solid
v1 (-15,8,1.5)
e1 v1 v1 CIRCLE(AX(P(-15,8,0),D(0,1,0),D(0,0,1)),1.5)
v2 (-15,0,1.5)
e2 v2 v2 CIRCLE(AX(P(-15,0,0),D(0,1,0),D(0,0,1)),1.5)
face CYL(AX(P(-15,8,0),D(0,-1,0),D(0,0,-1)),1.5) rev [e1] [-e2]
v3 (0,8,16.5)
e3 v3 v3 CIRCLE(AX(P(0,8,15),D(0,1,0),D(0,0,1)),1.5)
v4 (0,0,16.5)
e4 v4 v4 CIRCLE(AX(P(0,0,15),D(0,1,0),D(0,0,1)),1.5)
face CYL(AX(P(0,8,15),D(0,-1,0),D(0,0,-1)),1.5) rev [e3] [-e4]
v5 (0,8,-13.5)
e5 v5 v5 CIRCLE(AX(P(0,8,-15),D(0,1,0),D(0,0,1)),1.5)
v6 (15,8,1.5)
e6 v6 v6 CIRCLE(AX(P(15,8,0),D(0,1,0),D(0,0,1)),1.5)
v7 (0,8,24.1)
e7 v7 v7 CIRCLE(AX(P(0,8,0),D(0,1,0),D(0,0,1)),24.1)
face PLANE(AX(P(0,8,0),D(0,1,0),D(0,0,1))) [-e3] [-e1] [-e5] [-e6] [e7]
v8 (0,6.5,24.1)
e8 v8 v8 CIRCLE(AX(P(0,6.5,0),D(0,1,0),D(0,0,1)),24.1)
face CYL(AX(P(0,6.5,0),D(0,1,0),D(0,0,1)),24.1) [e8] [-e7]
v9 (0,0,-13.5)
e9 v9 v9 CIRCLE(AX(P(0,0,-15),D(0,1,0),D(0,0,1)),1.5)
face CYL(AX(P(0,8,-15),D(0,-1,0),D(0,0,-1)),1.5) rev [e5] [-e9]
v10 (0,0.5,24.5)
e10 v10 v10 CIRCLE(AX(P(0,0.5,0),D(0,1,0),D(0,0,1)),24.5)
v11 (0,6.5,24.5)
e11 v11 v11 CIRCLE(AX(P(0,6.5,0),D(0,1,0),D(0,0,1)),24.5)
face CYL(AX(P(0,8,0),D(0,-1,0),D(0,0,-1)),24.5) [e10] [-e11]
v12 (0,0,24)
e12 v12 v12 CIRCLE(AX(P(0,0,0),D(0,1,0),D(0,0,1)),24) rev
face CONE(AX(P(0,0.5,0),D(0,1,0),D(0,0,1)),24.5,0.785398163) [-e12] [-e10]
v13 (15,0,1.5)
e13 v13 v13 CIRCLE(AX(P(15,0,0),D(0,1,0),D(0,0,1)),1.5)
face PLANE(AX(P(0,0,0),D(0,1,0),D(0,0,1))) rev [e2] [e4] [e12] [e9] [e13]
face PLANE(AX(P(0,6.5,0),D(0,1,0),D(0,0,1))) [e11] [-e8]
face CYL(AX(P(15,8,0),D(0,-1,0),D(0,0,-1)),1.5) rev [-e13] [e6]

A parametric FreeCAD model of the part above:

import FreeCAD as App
import Part
import Sketcher
from FreeCAD import Vector
Q = App.Units.Quantity


def edges_at(feature, points):
    """Names of the edges that pass closest to the given points."""
    edges = feature.Shape.Edges
    near = lambda p: min(range(len(edges)), key=lambda i: edges[i].distToShape(Part.Vertex(*p))[0])
    return sorted({f"Edge{near(p) + 1}" for p in points})

doc = App.newDocument("Part")
body = doc.addObject("PartDesign::Body", "Body")

sketch1 = body.newObject("Sketcher::SketchObject", "Sketch")
sketch1.AttachmentSupport = (doc.getObject("XZ_Plane"), [""])
sketch1.MapMode = "FlatFace"
sketch1.addGeometry(Part.Circle(Vector(0, 0, 0), Vector(0, 0, 1), 24.5), False)
sketch1.addGeometry(Part.Circle(Vector(0, 15, 0), Vector(0, 0, 1), 1.5), False)
sketch1.addGeometry(Part.Circle(Vector(-15, 0, 0), Vector(0, 0, 1), 1.5), False)
sketch1.addGeometry(Part.Circle(Vector(15, 0, 0), Vector(0, 0, 1), 1.5), False)
sketch1.addGeometry(Part.Circle(Vector(0, -15, 0), Vector(0, 0, 1), 1.5), False)
sketch1.addConstraint(Sketcher.Constraint("Coincident", 0, 3, -1, 1))
sketch1.addConstraint(Sketcher.Constraint("Equal", 1, 2))
sketch1.addConstraint(Sketcher.Constraint("Equal", 2, 3))
sketch1.addConstraint(Sketcher.Constraint("Equal", 3, 4))
sketch1.addConstraint(Sketcher.Constraint("Symmetric", 2, 3, 3, 3, -1, 1))
sketch1.addConstraint(Sketcher.Constraint("Symmetric", 1, 3, 4, 3, -1, 1))
sketch1.addConstraint(Sketcher.Constraint("PointOnObject", 1, 3, -2))
sketch1.addConstraint(Sketcher.Constraint("PointOnObject", 2, 3, -1))
sketch1.addConstraint(Sketcher.Constraint("Diameter", 0, Q("49 mm")))
sketch1.addConstraint(Sketcher.Constraint("Diameter", 1, Q("3 mm")))
sketch1.addConstraint(Sketcher.Constraint("DistanceY", -1, 1, 1, 3, Q("15 mm")))
sketch1.addConstraint(Sketcher.Constraint("DistanceX", 2, 3, -1, 1, Q("15 mm")))
pad1 = body.newObject("PartDesign::Pad", "Pad")
pad1.Profile = sketch1
pad1.Length = 8
pad1.Reversed = True

sketch2 = body.newObject("Sketcher::SketchObject", "Sketch001")
sketch2.AttachmentSupport = (doc.getObject("XZ_Plane"), [""])
sketch2.MapMode = "FlatFace"
sketch2.AttachmentOffset = App.Placement(Vector(0, 0, -8), App.Rotation())
sketch2.addGeometry(Part.LineSegment(Vector(-32, -32, 0), Vector(-32, 32, 0)), False)
sketch2.addGeometry(Part.LineSegment(Vector(-32, 32, 0), Vector(32, 32, 0)), False)
sketch2.addGeometry(Part.LineSegment(Vector(32, 32, 0), Vector(32, -32, 0)), False)
sketch2.addGeometry(Part.LineSegment(Vector(32, -32, 0), Vector(-32, -32, 0)), False)
sketch2.addGeometry(Part.Circle(Vector(0, 0, 0), Vector(0, 0, 1), 24), False)
sketch2.addConstraint(Sketcher.Constraint("Coincident", 0, 2, 1, 1))
sketch2.addConstraint(Sketcher.Constraint("Coincident", 1, 2, 2, 1))
sketch2.addConstraint(Sketcher.Constraint("Coincident", 2, 2, 3, 1))
sketch2.addConstraint(Sketcher.Constraint("Coincident", 3, 2, 0, 1))
sketch2.addConstraint(Sketcher.Constraint("Vertical", 0))
sketch2.addConstraint(Sketcher.Constraint("Horizontal", 1))
sketch2.addConstraint(Sketcher.Constraint("Vertical", 2))
sketch2.addConstraint(Sketcher.Constraint("Horizontal", 3))
sketch2.addConstraint(Sketcher.Constraint("Coincident", 4, 3, -1, 1))
sketch2.addConstraint(Sketcher.Constraint("Symmetric", 0, 2, 2, 2, -1, 1))
sketch2.addConstraint(Sketcher.Constraint("Equal", 3, 0))
sketch2.addConstraint(Sketcher.Constraint("Diameter", 4, Q("48.2 mm")))
sketch2.addConstraint(Sketcher.Constraint("DistanceX", 1, 1, 1, 2, Q("64.952 mm")))
pocket1 = body.newObject("PartDesign::Pocket", "Pocket")
pocket1.Profile = sketch2
pocket1.Length = 1.5
pocket1.Reversed = True
doc.recompute()

chamfer = body.newObject("PartDesign::Chamfer", "Chamfer")
chamfer.Base = (pocket1, edges_at(pocket1, [(-24.5, 0, 0)]))
chamfer.Size = 0.5

doc.recompute()
